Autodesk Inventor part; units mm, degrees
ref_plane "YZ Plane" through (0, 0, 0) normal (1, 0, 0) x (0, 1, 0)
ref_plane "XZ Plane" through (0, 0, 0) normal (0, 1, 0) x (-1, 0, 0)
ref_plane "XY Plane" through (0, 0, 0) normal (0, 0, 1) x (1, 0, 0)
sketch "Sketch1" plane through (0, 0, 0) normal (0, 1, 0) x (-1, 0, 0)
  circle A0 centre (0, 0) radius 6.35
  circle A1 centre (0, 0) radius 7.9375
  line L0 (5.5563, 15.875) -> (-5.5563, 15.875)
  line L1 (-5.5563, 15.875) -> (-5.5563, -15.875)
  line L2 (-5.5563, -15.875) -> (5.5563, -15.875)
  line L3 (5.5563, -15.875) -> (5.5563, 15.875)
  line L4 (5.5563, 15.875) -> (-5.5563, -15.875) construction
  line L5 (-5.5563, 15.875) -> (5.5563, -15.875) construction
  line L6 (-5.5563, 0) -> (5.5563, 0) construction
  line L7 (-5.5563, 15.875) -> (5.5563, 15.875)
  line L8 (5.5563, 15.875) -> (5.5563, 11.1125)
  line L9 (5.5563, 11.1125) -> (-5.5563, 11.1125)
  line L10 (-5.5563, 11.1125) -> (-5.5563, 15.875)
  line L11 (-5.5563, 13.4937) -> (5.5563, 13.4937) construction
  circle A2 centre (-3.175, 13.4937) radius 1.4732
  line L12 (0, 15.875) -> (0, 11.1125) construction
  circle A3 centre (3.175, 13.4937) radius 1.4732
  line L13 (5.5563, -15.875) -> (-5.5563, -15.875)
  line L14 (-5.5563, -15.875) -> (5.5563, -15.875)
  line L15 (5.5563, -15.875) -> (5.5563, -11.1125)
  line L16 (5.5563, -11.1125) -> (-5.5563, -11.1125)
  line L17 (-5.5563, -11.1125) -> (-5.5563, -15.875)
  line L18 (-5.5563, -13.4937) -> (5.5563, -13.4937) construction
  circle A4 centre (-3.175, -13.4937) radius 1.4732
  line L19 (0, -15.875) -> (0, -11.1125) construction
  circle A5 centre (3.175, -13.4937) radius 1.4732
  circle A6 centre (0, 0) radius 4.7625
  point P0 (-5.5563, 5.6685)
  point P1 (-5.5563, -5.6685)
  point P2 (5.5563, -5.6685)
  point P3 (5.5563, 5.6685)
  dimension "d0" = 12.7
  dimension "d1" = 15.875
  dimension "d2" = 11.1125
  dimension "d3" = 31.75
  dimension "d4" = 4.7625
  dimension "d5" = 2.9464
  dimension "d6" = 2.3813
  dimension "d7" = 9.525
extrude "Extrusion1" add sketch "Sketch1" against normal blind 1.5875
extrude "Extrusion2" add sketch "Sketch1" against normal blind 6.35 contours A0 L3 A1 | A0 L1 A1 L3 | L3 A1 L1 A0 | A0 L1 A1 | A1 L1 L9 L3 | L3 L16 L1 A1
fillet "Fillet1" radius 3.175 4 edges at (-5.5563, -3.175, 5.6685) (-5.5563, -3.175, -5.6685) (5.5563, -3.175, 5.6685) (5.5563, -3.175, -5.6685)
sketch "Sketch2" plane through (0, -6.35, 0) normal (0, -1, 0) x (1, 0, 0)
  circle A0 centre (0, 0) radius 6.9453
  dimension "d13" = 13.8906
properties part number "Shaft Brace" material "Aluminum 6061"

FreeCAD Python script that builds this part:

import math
import FreeCAD as App
import Part
import Sketcher
from FreeCAD import Vector
Q = App.Units.Quantity


def edges_at(feature, points):
    """Names of the edges that pass closest to the given points."""
    edges = feature.Shape.Edges
    near = lambda p: min(range(len(edges)), key=lambda i: edges[i].distToShape(Part.Vertex(*p))[0])
    return sorted({f"Edge{near(p) + 1}" for p in points})

doc = App.newDocument("Part")
body = doc.addObject("PartDesign::Body", "Body")

sketch1 = doc.addObject("Sketcher::SketchObject", "Sketch")
body.addObject(sketch1)
sketch1.AttachmentSupport = (doc.XZ_Plane, [""])
sketch1.MapMode = "FlatFace"
sketch1.addGeometry(Part.LineSegment(Vector(-5.6, 5.7, 0), Vector(-5.6, 15.9, 0)), False)
sketch1.addGeometry(Part.LineSegment(Vector(-5.6, 15.9, 0), Vector(5.6, 15.9, 0)), False)
sketch1.addGeometry(Part.LineSegment(Vector(5.6, 15.9, 0), Vector(5.6, 5.7, 0)), False)
sketch1.addGeometry(Part.ArcOfCircle(Part.Circle(Vector(0, 0, 0), Vector(0, 0, 1), 7.9), math.radians(-46), math.radians(46)), False)
sketch1.addGeometry(Part.LineSegment(Vector(5.6, -5.7, 0), Vector(5.6, -15.9, 0)), False)
sketch1.addGeometry(Part.LineSegment(Vector(5.6, -15.9, 0), Vector(-5.6, -15.9, 0)), False)
sketch1.addGeometry(Part.LineSegment(Vector(-5.6, -15.9, 0), Vector(-5.6, -5.7, 0)), False)
sketch1.addGeometry(Part.ArcOfCircle(Part.Circle(Vector(0, 0, 0), Vector(0, 0, 1), 7.9), math.radians(134), math.radians(226)), False)
sketch1.addGeometry(Part.Circle(Vector(0, 0, 0), Vector(0, 0, 1), 4.8), False)
sketch1.addGeometry(Part.Circle(Vector(-3.2, -13.5, 0), Vector(0, 0, 1), 1.5), False)
sketch1.addGeometry(Part.Circle(Vector(3.2, -13.5, 0), Vector(0, 0, 1), 1.5), False)
sketch1.addGeometry(Part.Circle(Vector(-3.2, 13.5, 0), Vector(0, 0, 1), 1.5), False)
sketch1.addGeometry(Part.Circle(Vector(3.2, 13.5, 0), Vector(0, 0, 1), 1.5), False)
sketch1.addConstraint(Sketcher.Constraint("Coincident", 0, 2, 1, 1))
sketch1.addConstraint(Sketcher.Constraint("Coincident", 1, 2, 2, 1))
sketch1.addConstraint(Sketcher.Constraint("Coincident", 2, 2, 3, 2))
sketch1.addConstraint(Sketcher.Constraint("Coincident", 3, 1, 4, 1))
sketch1.addConstraint(Sketcher.Constraint("Coincident", 4, 2, 5, 1))
sketch1.addConstraint(Sketcher.Constraint("Coincident", 5, 2, 6, 1))
sketch1.addConstraint(Sketcher.Constraint("Coincident", 6, 2, 7, 2))
sketch1.addConstraint(Sketcher.Constraint("Coincident", 7, 1, 0, 1))
sketch1.addConstraint(Sketcher.Constraint("Vertical", 0))
sketch1.addConstraint(Sketcher.Constraint("Horizontal", 1))
sketch1.addConstraint(Sketcher.Constraint("Vertical", 2))
sketch1.addConstraint(Sketcher.Constraint("Vertical", 4))
sketch1.addConstraint(Sketcher.Constraint("Horizontal", 5))
sketch1.addConstraint(Sketcher.Constraint("Vertical", 6))
sketch1.addConstraint(Sketcher.Constraint("Coincident", 3, 3, -1, 1))
sketch1.addConstraint(Sketcher.Constraint("Coincident", 7, 3, -1, 1))
sketch1.addConstraint(Sketcher.Constraint("Coincident", 8, 3, -1, 1))
sketch1.addConstraint(Sketcher.Constraint("Equal", 3, 7))
sketch1.addConstraint(Sketcher.Constraint("Equal", 9, 10))
sketch1.addConstraint(Sketcher.Constraint("Equal", 10, 11))
sketch1.addConstraint(Sketcher.Constraint("Equal", 11, 12))
sketch1.addConstraint(Sketcher.Constraint("Symmetric", 10, 3, 11, 3, -1, 1))
sketch1.addConstraint(Sketcher.Constraint("Symmetric", 9, 3, 12, 3, -1, 1))
sketch1.addConstraint(Sketcher.Constraint("Symmetric", 0, 2, 4, 2, -1, 1))
sketch1.addConstraint(Sketcher.Constraint("Symmetric", 9, 3, 10, 3, -2))
sketch1.addConstraint(Sketcher.Constraint("Horizontal", 3, 1, 6, 2))
sketch1.addConstraint(Sketcher.Constraint("Horizontal", 2, 2, 7, 1))
sketch1.addConstraint(Sketcher.Constraint("Diameter", 8, Q("0.375 in")))
sketch1.addConstraint(Sketcher.Constraint("Diameter", 9, Q("0.116 in")))
sketch1.addConstraint(Sketcher.Constraint("Radius", 3, Q("0.3125 in")))
sketch1.addConstraint(Sketcher.Constraint("DistanceX", 1, 1, 1, 2, Q("0.4375 in")))
sketch1.addConstraint(Sketcher.Constraint("DistanceY", -1, 1, 0, 2, Q("0.625 in")))
sketch1.addConstraint(Sketcher.Constraint("DistanceX", 0, 2, 11, 3, Q("0.093752 in")))
sketch1.addConstraint(Sketcher.Constraint("DistanceY", 11, 3, 0, 2, Q("0.093752 in")))
pad1 = doc.addObject("PartDesign::Pad", "Pad")
body.addObject(pad1)
pad1.Profile = sketch1
pad1.Length = Q("0.0625 in")

sketch2 = doc.addObject("Sketcher::SketchObject", "Sketch001")
body.addObject(sketch2)
sketch2.AttachmentSupport = (doc.XZ_Plane, [""])
sketch2.MapMode = "FlatFace"
sketch2.addGeometry(Part.LineSegment(Vector(-6, 6, 0), Vector(-6, 11, 0)), False)
sketch2.addGeometry(Part.LineSegment(Vector(-6, 11, 0), Vector(6, 11, 0)), False)
sketch2.addGeometry(Part.LineSegment(Vector(6, 11, 0), Vector(6, 6, 0)), False)
sketch2.addGeometry(Part.ArcOfCircle(Part.Circle(Vector(0, 0, 0), Vector(0, 0, 1), 8), math.radians(-46), math.radians(46)), False)
sketch2.addGeometry(Part.LineSegment(Vector(6, -6, 0), Vector(6, -11, 0)), False)
sketch2.addGeometry(Part.LineSegment(Vector(6, -11, 0), Vector(-6, -11, 0)), False)
sketch2.addGeometry(Part.LineSegment(Vector(-6, -11, 0), Vector(-6, -6, 0)), False)
sketch2.addGeometry(Part.ArcOfCircle(Part.Circle(Vector(0, 0, 0), Vector(0, 0, 1), 8), math.radians(134), math.radians(226)), False)
sketch2.addGeometry(Part.Circle(Vector(0, 0, 0), Vector(0, 0, 1), 6), False)
sketch2.addConstraint(Sketcher.Constraint("Coincident", 0, 2, 1, 1))
sketch2.addConstraint(Sketcher.Constraint("Coincident", 1, 2, 2, 1))
sketch2.addConstraint(Sketcher.Constraint("Coincident", 2, 2, 3, 2))
sketch2.addConstraint(Sketcher.Constraint("Coincident", 3, 1, 4, 1))
sketch2.addConstraint(Sketcher.Constraint("Coincident", 4, 2, 5, 1))
sketch2.addConstraint(Sketcher.Constraint("Coincident", 5, 2, 6, 1))
sketch2.addConstraint(Sketcher.Constraint("Coincident", 6, 2, 7, 2))
sketch2.addConstraint(Sketcher.Constraint("Coincident", 7, 1, 0, 1))
sketch2.addConstraint(Sketcher.Constraint("Vertical", 0))
sketch2.addConstraint(Sketcher.Constraint("Horizontal", 1))
sketch2.addConstraint(Sketcher.Constraint("Vertical", 2))
sketch2.addConstraint(Sketcher.Constraint("Vertical", 4))
sketch2.addConstraint(Sketcher.Constraint("Horizontal", 5))
sketch2.addConstraint(Sketcher.Constraint("Vertical", 6))
sketch2.addConstraint(Sketcher.Constraint("Coincident", 3, 3, -1, 1))
sketch2.addConstraint(Sketcher.Constraint("Coincident", 7, 3, -1, 1))
sketch2.addConstraint(Sketcher.Constraint("Coincident", 8, 3, -1, 1))
sketch2.addConstraint(Sketcher.Constraint("Equal", 3, 7))
sketch2.addConstraint(Sketcher.Constraint("Symmetric", 0, 2, 4, 2, -1, 1))
sketch2.addConstraint(Sketcher.Constraint("Horizontal", 3, 1, 6, 2))
sketch2.addConstraint(Sketcher.Constraint("Horizontal", 2, 2, 7, 1))
sketch2.addConstraint(Sketcher.Constraint("Diameter", 8, Q("0.5 in")))
sketch2.addConstraint(Sketcher.Constraint("Radius", 3, Q("0.3125 in")))
sketch2.addConstraint(Sketcher.Constraint("DistanceX", 1, 1, 1, 2, Q("0.4375 in")))
sketch2.addConstraint(Sketcher.Constraint("DistanceY", -1, 1, 0, 2, Q("0.4375 in")))
pad2 = doc.addObject("PartDesign::Pad", "Pad001")
body.addObject(pad2)
pad2.Profile = sketch2
pad2.Length = Q("0.25 in")
doc.recompute()

fillet = doc.addObject("PartDesign::Fillet", "Fillet")
body.addObject(fillet)
fillet.Base = (pad2, edges_at(pad2, [
    (-5.556, -3.175, 5.668),
    (-5.556, -3.175, -5.668),
    (5.556, -3.175, 5.668),
    (5.556, -3.175, -5.668),
]))
fillet.Radius = Q("0.125 in")

doc.recompute()
